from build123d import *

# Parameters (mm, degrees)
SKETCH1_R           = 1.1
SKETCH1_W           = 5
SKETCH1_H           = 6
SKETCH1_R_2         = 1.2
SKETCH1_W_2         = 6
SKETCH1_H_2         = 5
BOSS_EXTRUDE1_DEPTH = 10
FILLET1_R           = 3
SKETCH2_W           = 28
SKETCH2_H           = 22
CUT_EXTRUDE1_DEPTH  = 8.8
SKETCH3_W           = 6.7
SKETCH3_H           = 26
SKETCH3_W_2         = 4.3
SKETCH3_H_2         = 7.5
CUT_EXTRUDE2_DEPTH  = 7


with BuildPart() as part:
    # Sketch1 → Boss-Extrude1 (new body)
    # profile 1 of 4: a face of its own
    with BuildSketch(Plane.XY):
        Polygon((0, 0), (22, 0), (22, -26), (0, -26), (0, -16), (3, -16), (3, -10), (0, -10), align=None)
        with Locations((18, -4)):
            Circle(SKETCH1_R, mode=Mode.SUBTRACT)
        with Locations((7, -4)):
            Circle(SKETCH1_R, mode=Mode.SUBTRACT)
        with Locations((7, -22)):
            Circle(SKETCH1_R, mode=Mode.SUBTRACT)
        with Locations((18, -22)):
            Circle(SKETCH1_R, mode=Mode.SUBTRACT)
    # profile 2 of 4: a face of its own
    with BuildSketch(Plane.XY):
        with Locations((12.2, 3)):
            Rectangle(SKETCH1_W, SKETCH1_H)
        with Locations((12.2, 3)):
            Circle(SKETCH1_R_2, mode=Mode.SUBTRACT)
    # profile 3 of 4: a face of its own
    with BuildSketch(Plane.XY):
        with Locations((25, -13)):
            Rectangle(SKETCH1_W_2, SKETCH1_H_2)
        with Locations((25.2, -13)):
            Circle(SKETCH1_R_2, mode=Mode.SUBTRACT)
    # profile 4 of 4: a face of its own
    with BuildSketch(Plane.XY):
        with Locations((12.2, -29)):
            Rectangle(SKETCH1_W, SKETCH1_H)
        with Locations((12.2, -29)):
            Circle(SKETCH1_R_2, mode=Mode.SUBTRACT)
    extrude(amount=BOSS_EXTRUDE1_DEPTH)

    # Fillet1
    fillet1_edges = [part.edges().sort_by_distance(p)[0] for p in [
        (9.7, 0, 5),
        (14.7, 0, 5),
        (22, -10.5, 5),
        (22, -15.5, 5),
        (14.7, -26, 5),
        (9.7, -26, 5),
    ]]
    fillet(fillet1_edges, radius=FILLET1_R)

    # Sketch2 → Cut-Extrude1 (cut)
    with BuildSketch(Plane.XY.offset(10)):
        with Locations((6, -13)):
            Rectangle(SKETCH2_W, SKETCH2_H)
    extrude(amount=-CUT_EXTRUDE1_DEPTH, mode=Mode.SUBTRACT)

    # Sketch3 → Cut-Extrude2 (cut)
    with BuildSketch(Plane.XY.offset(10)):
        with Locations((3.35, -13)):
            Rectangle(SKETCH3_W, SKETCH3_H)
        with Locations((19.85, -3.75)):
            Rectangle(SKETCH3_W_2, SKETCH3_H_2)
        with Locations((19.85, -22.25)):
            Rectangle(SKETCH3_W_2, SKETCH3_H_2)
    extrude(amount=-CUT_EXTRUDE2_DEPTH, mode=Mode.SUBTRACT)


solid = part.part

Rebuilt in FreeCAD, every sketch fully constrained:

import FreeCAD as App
import Part
import Sketcher


def edges_at(feature, points):
    """Names of the edges that pass closest to the given points."""
    edges = feature.Shape.Edges
    near = lambda p: min(range(len(edges)), key=lambda i: edges[i].distToShape(Part.Vertex(*p))[0])
    return sorted({f"Edge{near(p) + 1}" for p in points})

doc = App.newDocument("Part")
body = doc.addObject("PartDesign::Body", "Body")

sketch1 = body.newObject("Sketcher::SketchObject", "Sketch")
sketch1.AttachmentSupport = (doc.getObject("XY_Plane"), [""])
sketch1.MapMode = "FlatFace"
sketch1.addGeometry(Part.LineSegment(App.Vector(9.7, 0, 0), App.Vector(0, 0, 0)), False)
sketch1.addGeometry(Part.LineSegment(App.Vector(0, 0, 0), App.Vector(0, -10, 0)), False)
sketch1.addGeometry(Part.LineSegment(App.Vector(0, -10, 0), App.Vector(3, -10, 0)), False)
sketch1.addGeometry(Part.LineSegment(App.Vector(3, -10, 0), App.Vector(3, -16, 0)), False)
sketch1.addGeometry(Part.LineSegment(App.Vector(3, -16, 0), App.Vector(0, -16, 0)), False)
sketch1.addGeometry(Part.LineSegment(App.Vector(0, -16, 0), App.Vector(0, -26, 0)), False)
sketch1.addGeometry(Part.LineSegment(App.Vector(0, -26, 0), App.Vector(9.7, -26, 0)), False)
sketch1.addGeometry(Part.LineSegment(App.Vector(9.7, -26, 0), App.Vector(9.7, -32, 0)), False)
sketch1.addGeometry(Part.LineSegment(App.Vector(9.7, -32, 0), App.Vector(14.7, -32, 0)), False)
sketch1.addGeometry(Part.LineSegment(App.Vector(14.7, -32, 0), App.Vector(14.7, -26, 0)), False)
sketch1.addGeometry(Part.LineSegment(App.Vector(14.7, -26, 0), App.Vector(22, -26, 0)), False)
sketch1.addGeometry(Part.LineSegment(App.Vector(22, -26, 0), App.Vector(22, -15.5, 0)), False)
sketch1.addGeometry(Part.LineSegment(App.Vector(22, -15.5, 0), App.Vector(28, -15.5, 0)), False)
sketch1.addGeometry(Part.LineSegment(App.Vector(28, -15.5, 0), App.Vector(28, -10.5, 0)), False)
sketch1.addGeometry(Part.LineSegment(App.Vector(28, -10.5, 0), App.Vector(22, -10.5, 0)), False)
sketch1.addGeometry(Part.LineSegment(App.Vector(22, -10.5, 0), App.Vector(22, 0, 0)), False)
sketch1.addGeometry(Part.LineSegment(App.Vector(22, 0, 0), App.Vector(14.7, 0, 0)), False)
sketch1.addGeometry(Part.LineSegment(App.Vector(14.7, 0, 0), App.Vector(14.7, 6, 0)), False)
sketch1.addGeometry(Part.LineSegment(App.Vector(14.7, 6, 0), App.Vector(9.7, 6, 0)), False)
sketch1.addGeometry(Part.LineSegment(App.Vector(9.7, 6, 0), App.Vector(9.7, 0, 0)), False)
sketch1.addGeometry(Part.Circle(App.Vector(18, -22, 0), App.Vector(0, 0, 1), 1.1), False)
sketch1.addGeometry(Part.Circle(App.Vector(7, -22, 0), App.Vector(0, 0, 1), 1.1), False)
sketch1.addGeometry(Part.Circle(App.Vector(18, -4, 0), App.Vector(0, 0, 1), 1.1), False)
sketch1.addGeometry(Part.Circle(App.Vector(7, -4, 0), App.Vector(0, 0, 1), 1.1), False)
sketch1.addGeometry(Part.Circle(App.Vector(12.2, 3, 0), App.Vector(0, 0, 1), 1.2), False)
sketch1.addGeometry(Part.Circle(App.Vector(25.2, -13, 0), App.Vector(0, 0, 1), 1.2), False)
sketch1.addGeometry(Part.Circle(App.Vector(12.2, -29, 0), App.Vector(0, 0, 1), 1.2), False)
sketch1.addConstraint(Sketcher.Constraint("Coincident", 0, 2, 1, 1))
sketch1.addConstraint(Sketcher.Constraint("Coincident", 1, 2, 2, 1))
sketch1.addConstraint(Sketcher.Constraint("Coincident", 2, 2, 3, 1))
sketch1.addConstraint(Sketcher.Constraint("Coincident", 3, 2, 4, 1))
sketch1.addConstraint(Sketcher.Constraint("Coincident", 4, 2, 5, 1))
sketch1.addConstraint(Sketcher.Constraint("Coincident", 5, 2, 6, 1))
sketch1.addConstraint(Sketcher.Constraint("Coincident", 6, 2, 7, 1))
sketch1.addConstraint(Sketcher.Constraint("Coincident", 7, 2, 8, 1))
sketch1.addConstraint(Sketcher.Constraint("Coincident", 8, 2, 9, 1))
sketch1.addConstraint(Sketcher.Constraint("Coincident", 9, 2, 10, 1))
sketch1.addConstraint(Sketcher.Constraint("Coincident", 10, 2, 11, 1))
sketch1.addConstraint(Sketcher.Constraint("Coincident", 11, 2, 12, 1))
sketch1.addConstraint(Sketcher.Constraint("Coincident", 12, 2, 13, 1))
sketch1.addConstraint(Sketcher.Constraint("Coincident", 13, 2, 14, 1))
sketch1.addConstraint(Sketcher.Constraint("Coincident", 14, 2, 15, 1))
sketch1.addConstraint(Sketcher.Constraint("Coincident", 15, 2, 16, 1))
sketch1.addConstraint(Sketcher.Constraint("Coincident", 16, 2, 17, 1))
sketch1.addConstraint(Sketcher.Constraint("Coincident", 17, 2, 18, 1))
sketch1.addConstraint(Sketcher.Constraint("Coincident", 18, 2, 19, 1))
sketch1.addConstraint(Sketcher.Constraint("Coincident", 19, 2, 0, 1))
sketch1.addConstraint(Sketcher.Constraint("Horizontal", 0))
sketch1.addConstraint(Sketcher.Constraint("Vertical", 1))
sketch1.addConstraint(Sketcher.Constraint("Horizontal", 2))
sketch1.addConstraint(Sketcher.Constraint("Vertical", 3))
sketch1.addConstraint(Sketcher.Constraint("Horizontal", 4))
sketch1.addConstraint(Sketcher.Constraint("Vertical", 5))
sketch1.addConstraint(Sketcher.Constraint("Horizontal", 6))
sketch1.addConstraint(Sketcher.Constraint("Vertical", 7))
sketch1.addConstraint(Sketcher.Constraint("Horizontal", 8))
sketch1.addConstraint(Sketcher.Constraint("Vertical", 9))
sketch1.addConstraint(Sketcher.Constraint("Horizontal", 10))
sketch1.addConstraint(Sketcher.Constraint("Vertical", 11))
sketch1.addConstraint(Sketcher.Constraint("Horizontal", 12))
sketch1.addConstraint(Sketcher.Constraint("Vertical", 13))
sketch1.addConstraint(Sketcher.Constraint("Horizontal", 14))
sketch1.addConstraint(Sketcher.Constraint("Vertical", 15))
sketch1.addConstraint(Sketcher.Constraint("Horizontal", 16))
sketch1.addConstraint(Sketcher.Constraint("Vertical", 17))
sketch1.addConstraint(Sketcher.Constraint("Horizontal", 18))
sketch1.addConstraint(Sketcher.Constraint("Vertical", 19))
sketch1.addConstraint(Sketcher.Constraint("Coincident", 0, 2, -1, 1))
sketch1.addConstraint(Sketcher.Constraint("Equal", 20, 21))
sketch1.addConstraint(Sketcher.Constraint("Equal", 21, 22))
sketch1.addConstraint(Sketcher.Constraint("Equal", 22, 23))
sketch1.addConstraint(Sketcher.Constraint("Equal", 24, 25))
sketch1.addConstraint(Sketcher.Constraint("Equal", 25, 26))
sketch1.addConstraint(Sketcher.Constraint("PointOnObject", 4, 2, -2))
sketch1.addConstraint(Sketcher.Constraint("PointOnObject", 15, 2, -1))
sketch1.addConstraint(Sketcher.Constraint("Horizontal", 20, 3, 21, 3))
sketch1.addConstraint(Sketcher.Constraint("Horizontal", 22, 3, 23, 3))
sketch1.addConstraint(Sketcher.Constraint("Horizontal", 6, 2, 9, 2))
sketch1.addConstraint(Sketcher.Constraint("Vertical", 20, 3, 22, 3))
sketch1.addConstraint(Sketcher.Constraint("Vertical", 21, 3, 23, 3))
sketch1.addConstraint(Sketcher.Constraint("Vertical", 24, 3, 26, 3))
sketch1.addConstraint(Sketcher.Constraint("Vertical", 11, 2, 14, 2))
sketch1.addConstraint(Sketcher.Constraint("Vertical", 9, 2, 16, 2))
sketch1.addConstraint(Sketcher.Constraint("Vertical", 7, 2, 18, 2))
sketch1.addConstraint(Sketcher.Constraint("Equal", 14, 3))
sketch1.addConstraint(Sketcher.Constraint("Equal", 1, 5))
sketch1.addConstraint(Sketcher.Constraint("Equal", 3, 7))
sketch1.addConstraint(Sketcher.Constraint("Equal", 18, 13))
sketch1.addConstraint(Sketcher.Constraint("Equal", 11, 15))
sketch1.addConstraint(Sketcher.Constraint("Equal", 9, 17))
sketch1.addConstraint(Sketcher.Constraint("Diameter", 20, 2.2))
sketch1.addConstraint(Sketcher.Constraint("Diameter", 24, 2.4))
sketch1.addConstraint(Sketcher.Constraint("DistanceX", 2, 1, 2, 2, 3.0))
sketch1.addConstraint(Sketcher.Constraint("DistanceX", 8, 1, 8, 2, 5.0))
sketch1.addConstraint(Sketcher.Constraint("DistanceX", 12, 1, 12, 2, 6.0))
sketch1.addConstraint(Sketcher.Constraint("DistanceY", 1, 2, 1, 1, 10.0))
sketch1.addConstraint(Sketcher.Constraint("DistanceX", 0, 2, 0, 1, 9.7))
sketch1.addConstraint(Sketcher.Constraint("DistanceX", 10, 1, 10, 2, 7.3))
sketch1.addConstraint(Sketcher.Constraint("DistanceX", -1, 1, 20, 3, 18.0))
sketch1.addConstraint(Sketcher.Constraint("DistanceY", 20, 3, -1, 1, 22.0))
sketch1.addConstraint(Sketcher.Constraint("DistanceX", -1, 1, 21, 3, 7.0))
sketch1.addConstraint(Sketcher.Constraint("DistanceY", 22, 3, -1, 1, 4.0))
sketch1.addConstraint(Sketcher.Constraint("DistanceY", -1, 1, 24, 3, 3.0))
sketch1.addConstraint(Sketcher.Constraint("DistanceY", 25, 3, -1, 1, 13.0))
sketch1.addConstraint(Sketcher.Constraint("DistanceY", 26, 3, -1, 1, 29.0))
sketch1.addConstraint(Sketcher.Constraint("DistanceX", 24, 3, 25, 3, 13.0))
sketch1.addConstraint(Sketcher.Constraint("DistanceX", -1, 1, 24, 3, 12.2))
pad1 = body.newObject("PartDesign::Pad", "Pad")
pad1.Profile = sketch1
pad1.Length = 10
doc.recompute()

fillet = body.newObject("PartDesign::Fillet", "Fillet")
fillet.Base = (pad1, edges_at(pad1, [
    (9.7, 0, 5),
    (14.7, 0, 5),
    (22, -10.5, 5),
    (22, -15.5, 5),
    (14.7, -26, 5),
    (9.7, -26, 5),
]))
fillet.Radius = 3

sketch2 = body.newObject("Sketcher::SketchObject", "Sketch001")
sketch2.AttachmentSupport = (doc.getObject("XY_Plane"), [""])
sketch2.MapMode = "FlatFace"
sketch2.AttachmentOffset = App.Placement(App.Vector(0, 0, 10), App.Rotation())
sketch2.addGeometry(Part.LineSegment(App.Vector(-8, -2, 0), App.Vector(-8, -24, 0)), False)
sketch2.addGeometry(Part.LineSegment(App.Vector(-8, -24, 0), App.Vector(20, -24, 0)), False)
sketch2.addGeometry(Part.LineSegment(App.Vector(20, -24, 0), App.Vector(20, -2, 0)), False)
sketch2.addGeometry(Part.LineSegment(App.Vector(20, -2, 0), App.Vector(-8, -2, 0)), False)
sketch2.addConstraint(Sketcher.Constraint("Coincident", 0, 2, 1, 1))
sketch2.addConstraint(Sketcher.Constraint("Coincident", 1, 2, 2, 1))
sketch2.addConstraint(Sketcher.Constraint("Coincident", 2, 2, 3, 1))
sketch2.addConstraint(Sketcher.Constraint("Coincident", 3, 2, 0, 1))
sketch2.addConstraint(Sketcher.Constraint("Vertical", 0))
sketch2.addConstraint(Sketcher.Constraint("Horizontal", 1))
sketch2.addConstraint(Sketcher.Constraint("Vertical", 2))
sketch2.addConstraint(Sketcher.Constraint("Horizontal", 3))
sketch2.addConstraint(Sketcher.Constraint("DistanceX", 1, 1, 1, 2, 28.0))
sketch2.addConstraint(Sketcher.Constraint("DistanceY", 0, 2, 0, 1, 22.0))
sketch2.addConstraint(Sketcher.Constraint("DistanceX", 0, 2, -1, 1, 8.0))
sketch2.addConstraint(Sketcher.Constraint("DistanceY", 0, 2, -1, 1, 24.0))
pocket1 = body.newObject("PartDesign::Pocket", "Pocket")
pocket1.Profile = sketch2
pocket1.Length = 8.8

sketch3 = body.newObject("Sketcher::SketchObject", "Sketch002")
sketch3.AttachmentSupport = (doc.getObject("XY_Plane"), [""])
sketch3.MapMode = "FlatFace"
sketch3.AttachmentOffset = App.Placement(App.Vector(0, 0, 10), App.Rotation())
sketch3.addGeometry(Part.LineSegment(App.Vector(0, 0, 0), App.Vector(0, -26, 0)), False)
sketch3.addGeometry(Part.LineSegment(App.Vector(0, -26, 0), App.Vector(6.7, -26, 0)), False)
sketch3.addGeometry(Part.LineSegment(App.Vector(6.7, -26, 0), App.Vector(6.7, 0, 0)), False)
sketch3.addGeometry(Part.LineSegment(App.Vector(6.7, 0, 0), App.Vector(0, 0, 0)), False)
sketch3.addGeometry(Part.LineSegment(App.Vector(17.7, 0, 0), App.Vector(17.7, -7.5, 0)), False)
sketch3.addGeometry(Part.LineSegment(App.Vector(17.7, -7.5, 0), App.Vector(22, -7.5, 0)), False)
sketch3.addGeometry(Part.LineSegment(App.Vector(22, -7.5, 0), App.Vector(22, 0, 0)), False)
sketch3.addGeometry(Part.LineSegment(App.Vector(22, 0, 0), App.Vector(17.7, 0, 0)), False)
sketch3.addGeometry(Part.LineSegment(App.Vector(17.7, -18.5, 0), App.Vector(17.7, -26, 0)), False)
sketch3.addGeometry(Part.LineSegment(App.Vector(17.7, -26, 0), App.Vector(22, -26, 0)), False)
sketch3.addGeometry(Part.LineSegment(App.Vector(22, -26, 0), App.Vector(22, -18.5, 0)), False)
sketch3.addGeometry(Part.LineSegment(App.Vector(22, -18.5, 0), App.Vector(17.7, -18.5, 0)), False)
sketch3.addConstraint(Sketcher.Constraint("Coincident", 0, 2, 1, 1))
sketch3.addConstraint(Sketcher.Constraint("Coincident", 1, 2, 2, 1))
sketch3.addConstraint(Sketcher.Constraint("Coincident", 2, 2, 3, 1))
sketch3.addConstraint(Sketcher.Constraint("Coincident", 3, 2, 0, 1))
sketch3.addConstraint(Sketcher.Constraint("Coincident", 4, 2, 5, 1))
sketch3.addConstraint(Sketcher.Constraint("Coincident", 5, 2, 6, 1))
sketch3.addConstraint(Sketcher.Constraint("Coincident", 6, 2, 7, 1))
sketch3.addConstraint(Sketcher.Constraint("Coincident", 7, 2, 4, 1))
sketch3.addConstraint(Sketcher.Constraint("Coincident", 8, 2, 9, 1))
sketch3.addConstraint(Sketcher.Constraint("Coincident", 9, 2, 10, 1))
sketch3.addConstraint(Sketcher.Constraint("Coincident", 10, 2, 11, 1))
sketch3.addConstraint(Sketcher.Constraint("Coincident", 11, 2, 8, 1))
sketch3.addConstraint(Sketcher.Constraint("Vertical", 0))
sketch3.addConstraint(Sketcher.Constraint("Horizontal", 1))
sketch3.addConstraint(Sketcher.Constraint("Vertical", 2))
sketch3.addConstraint(Sketcher.Constraint("Horizontal", 3))
sketch3.addConstraint(Sketcher.Constraint("Vertical", 4))
sketch3.addConstraint(Sketcher.Constraint("Horizontal", 5))
sketch3.addConstraint(Sketcher.Constraint("Vertical", 6))
sketch3.addConstraint(Sketcher.Constraint("Horizontal", 7))
sketch3.addConstraint(Sketcher.Constraint("Vertical", 8))
sketch3.addConstraint(Sketcher.Constraint("Horizontal", 9))
sketch3.addConstraint(Sketcher.Constraint("Vertical", 10))
sketch3.addConstraint(Sketcher.Constraint("Horizontal", 11))
sketch3.addConstraint(Sketcher.Constraint("Coincident", 3, 2, -1, 1))
sketch3.addConstraint(Sketcher.Constraint("PointOnObject", 6, 2, -1))
sketch3.addConstraint(Sketcher.Constraint("Horizontal", 1, 2, 8, 2))
sketch3.addConstraint(Sketcher.Constraint("Vertical", 7, 2, 8, 2))
sketch3.addConstraint(Sketcher.Constraint("Vertical", 6, 2, 9, 2))
sketch3.addConstraint(Sketcher.Constraint("Equal", 6, 8))
sketch3.addConstraint(Sketcher.Constraint("DistanceY", 0, 2, 0, 1, 26.0))
sketch3.addConstraint(Sketcher.Constraint("DistanceX", 1, 1, 1, 2, 6.7))
sketch3.addConstraint(Sketcher.Constraint("DistanceX", 5, 1, 5, 2, 4.3))
sketch3.addConstraint(Sketcher.Constraint("DistanceY", 4, 2, 4, 1, 7.5))
sketch3.addConstraint(Sketcher.Constraint("DistanceX", -1, 1, 5, 2, 22.0))
pocket2 = body.newObject("PartDesign::Pocket", "Pocket001")
pocket2.Profile = sketch3
pocket2.Length = 7

doc.recompute()
